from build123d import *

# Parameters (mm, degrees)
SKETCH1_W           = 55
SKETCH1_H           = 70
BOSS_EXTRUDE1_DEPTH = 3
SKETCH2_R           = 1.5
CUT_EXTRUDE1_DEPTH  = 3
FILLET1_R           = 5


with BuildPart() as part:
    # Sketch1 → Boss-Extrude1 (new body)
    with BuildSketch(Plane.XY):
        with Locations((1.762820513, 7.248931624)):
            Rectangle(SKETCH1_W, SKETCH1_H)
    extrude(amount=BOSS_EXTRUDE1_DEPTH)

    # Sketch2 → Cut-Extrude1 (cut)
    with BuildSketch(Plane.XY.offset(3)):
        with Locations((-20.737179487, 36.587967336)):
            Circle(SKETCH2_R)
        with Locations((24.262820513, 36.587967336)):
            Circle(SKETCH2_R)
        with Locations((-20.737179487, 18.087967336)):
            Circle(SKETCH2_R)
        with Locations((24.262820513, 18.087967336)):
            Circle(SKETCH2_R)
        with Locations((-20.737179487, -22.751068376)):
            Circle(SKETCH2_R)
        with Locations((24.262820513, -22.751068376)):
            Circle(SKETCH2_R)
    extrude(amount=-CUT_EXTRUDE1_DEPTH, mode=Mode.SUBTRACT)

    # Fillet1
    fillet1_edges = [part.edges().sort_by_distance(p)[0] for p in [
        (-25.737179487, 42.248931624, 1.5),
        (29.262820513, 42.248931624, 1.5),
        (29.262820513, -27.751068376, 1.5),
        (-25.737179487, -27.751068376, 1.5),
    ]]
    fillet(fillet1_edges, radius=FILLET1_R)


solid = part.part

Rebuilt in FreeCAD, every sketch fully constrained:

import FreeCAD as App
import Part
import Sketcher


def edges_at(feature, points):
    """Names of the edges that pass closest to the given points."""
    edges = feature.Shape.Edges
    near = lambda p: min(range(len(edges)), key=lambda i: edges[i].distToShape(Part.Vertex(*p))[0])
    return sorted({f"Edge{near(p) + 1}" for p in points})


def add_polygon(sketch, points):
    """Adds a closed chain of lines whose ends are joined by coincident constraints."""
    first, n = sketch.GeometryCount, len(points)
    for a, b in zip(points, points[1:] + points[:1]):
        sketch.addGeometry(Part.LineSegment(App.Vector(*a, 0), App.Vector(*b, 0)), False)
    for i in range(n):
        sketch.addConstraint(Sketcher.Constraint("Coincident", first + i, 2, first + (i + 1) % n, 1))

doc = App.newDocument("Part")
body = doc.addObject("PartDesign::Body", "Body")

# Sketch on XY plane
sketch1 = body.newObject("Sketcher::SketchObject", "Sketch")
sketch1.AttachmentSupport = (doc.getObject("XY_Plane"), [""])
sketch1.MapMode = "FlatFace"
add_polygon(sketch1, [(-26, 42), (-26, -28), (29, -28), (29, 42)])  # lines 0-3
sketch1.addConstraint(Sketcher.Constraint("Vertical", 0))
sketch1.addConstraint(Sketcher.Constraint("Horizontal", 1))
sketch1.addConstraint(Sketcher.Constraint("Vertical", 2))
sketch1.addConstraint(Sketcher.Constraint("Horizontal", 3))
sketch1.addConstraint(Sketcher.Constraint("DistanceX", 1, 1, 1, 2, 55.0))
sketch1.addConstraint(Sketcher.Constraint("DistanceY", 0, 2, 0, 1, 70.0))
sketch1.addConstraint(Sketcher.Constraint("DistanceX", 0, 2, -1, 1, 25.737179))
sketch1.addConstraint(Sketcher.Constraint("DistanceY", 0, 2, -1, 1, 27.751068))
pad1 = body.newObject("PartDesign::Pad", "Pad")
pad1.Profile = sketch1
pad1.Length = 3

# Sketch on XY plane
sketch2 = body.newObject("Sketcher::SketchObject", "Sketch001")
sketch2.AttachmentSupport = (doc.getObject("XY_Plane"), [""])
sketch2.MapMode = "FlatFace"
sketch2.AttachmentOffset = App.Placement(App.Vector(0, 0, 3), App.Rotation())
sketch2.addGeometry(Part.Circle(App.Vector(-20.7, 36.6, 0), App.Vector(0, 0, 1), 1.5), False)
sketch2.addGeometry(Part.Circle(App.Vector(24.3, 36.6, 0), App.Vector(0, 0, 1), 1.5), False)
sketch2.addGeometry(Part.Circle(App.Vector(-20.7, 18.1, 0), App.Vector(0, 0, 1), 1.5), False)
sketch2.addGeometry(Part.Circle(App.Vector(24.3, 18.1, 0), App.Vector(0, 0, 1), 1.5), False)
sketch2.addGeometry(Part.Circle(App.Vector(-20.7, -22.8, 0), App.Vector(0, 0, 1), 1.5), False)
sketch2.addGeometry(Part.Circle(App.Vector(24.3, -22.8, 0), App.Vector(0, 0, 1), 1.5), False)
sketch2.addConstraint(Sketcher.Constraint("Equal", 0, 1))
sketch2.addConstraint(Sketcher.Constraint("Equal", 1, 2))
sketch2.addConstraint(Sketcher.Constraint("Equal", 2, 3))
sketch2.addConstraint(Sketcher.Constraint("Equal", 3, 4))
sketch2.addConstraint(Sketcher.Constraint("Equal", 4, 5))
sketch2.addConstraint(Sketcher.Constraint("Horizontal", 0, 3, 1, 3))
sketch2.addConstraint(Sketcher.Constraint("Horizontal", 2, 3, 3, 3))
sketch2.addConstraint(Sketcher.Constraint("Horizontal", 4, 3, 5, 3))
sketch2.addConstraint(Sketcher.Constraint("Vertical", 0, 3, 2, 3))
sketch2.addConstraint(Sketcher.Constraint("Vertical", 1, 3, 3, 3))
sketch2.addConstraint(Sketcher.Constraint("Vertical", 2, 3, 4, 3))
sketch2.addConstraint(Sketcher.Constraint("Vertical", 3, 3, 5, 3))
sketch2.addConstraint(Sketcher.Constraint("Diameter", 0, 3.0))
sketch2.addConstraint(Sketcher.Constraint("DistanceX", 0, 3, 1, 3, 45.0))
sketch2.addConstraint(Sketcher.Constraint("DistanceY", 2, 3, 0, 3, 18.5))
sketch2.addConstraint(Sketcher.Constraint("DistanceX", 0, 3, -1, 1, 20.737179))
sketch2.addConstraint(Sketcher.Constraint("DistanceY", 4, 3, -1, 1, 22.751068))
sketch2.addConstraint(Sketcher.Constraint("DistanceY", -1, 1, 0, 3, 36.587967))
pocket1 = body.newObject("PartDesign::Pocket", "Pocket")
pocket1.Profile = sketch2
pocket1.Length = 3
doc.recompute()

fillet = body.newObject("PartDesign::Fillet", "Fillet")
fillet.Base = (pocket1, edges_at(pocket1, [
    (-25.737, 42.249, 1.5),
    (29.263, 42.249, 1.5),
    (29.263, -27.751, 1.5),
    (-25.737, -27.751, 1.5),
]))
fillet.Radius = 5

doc.recompute()
